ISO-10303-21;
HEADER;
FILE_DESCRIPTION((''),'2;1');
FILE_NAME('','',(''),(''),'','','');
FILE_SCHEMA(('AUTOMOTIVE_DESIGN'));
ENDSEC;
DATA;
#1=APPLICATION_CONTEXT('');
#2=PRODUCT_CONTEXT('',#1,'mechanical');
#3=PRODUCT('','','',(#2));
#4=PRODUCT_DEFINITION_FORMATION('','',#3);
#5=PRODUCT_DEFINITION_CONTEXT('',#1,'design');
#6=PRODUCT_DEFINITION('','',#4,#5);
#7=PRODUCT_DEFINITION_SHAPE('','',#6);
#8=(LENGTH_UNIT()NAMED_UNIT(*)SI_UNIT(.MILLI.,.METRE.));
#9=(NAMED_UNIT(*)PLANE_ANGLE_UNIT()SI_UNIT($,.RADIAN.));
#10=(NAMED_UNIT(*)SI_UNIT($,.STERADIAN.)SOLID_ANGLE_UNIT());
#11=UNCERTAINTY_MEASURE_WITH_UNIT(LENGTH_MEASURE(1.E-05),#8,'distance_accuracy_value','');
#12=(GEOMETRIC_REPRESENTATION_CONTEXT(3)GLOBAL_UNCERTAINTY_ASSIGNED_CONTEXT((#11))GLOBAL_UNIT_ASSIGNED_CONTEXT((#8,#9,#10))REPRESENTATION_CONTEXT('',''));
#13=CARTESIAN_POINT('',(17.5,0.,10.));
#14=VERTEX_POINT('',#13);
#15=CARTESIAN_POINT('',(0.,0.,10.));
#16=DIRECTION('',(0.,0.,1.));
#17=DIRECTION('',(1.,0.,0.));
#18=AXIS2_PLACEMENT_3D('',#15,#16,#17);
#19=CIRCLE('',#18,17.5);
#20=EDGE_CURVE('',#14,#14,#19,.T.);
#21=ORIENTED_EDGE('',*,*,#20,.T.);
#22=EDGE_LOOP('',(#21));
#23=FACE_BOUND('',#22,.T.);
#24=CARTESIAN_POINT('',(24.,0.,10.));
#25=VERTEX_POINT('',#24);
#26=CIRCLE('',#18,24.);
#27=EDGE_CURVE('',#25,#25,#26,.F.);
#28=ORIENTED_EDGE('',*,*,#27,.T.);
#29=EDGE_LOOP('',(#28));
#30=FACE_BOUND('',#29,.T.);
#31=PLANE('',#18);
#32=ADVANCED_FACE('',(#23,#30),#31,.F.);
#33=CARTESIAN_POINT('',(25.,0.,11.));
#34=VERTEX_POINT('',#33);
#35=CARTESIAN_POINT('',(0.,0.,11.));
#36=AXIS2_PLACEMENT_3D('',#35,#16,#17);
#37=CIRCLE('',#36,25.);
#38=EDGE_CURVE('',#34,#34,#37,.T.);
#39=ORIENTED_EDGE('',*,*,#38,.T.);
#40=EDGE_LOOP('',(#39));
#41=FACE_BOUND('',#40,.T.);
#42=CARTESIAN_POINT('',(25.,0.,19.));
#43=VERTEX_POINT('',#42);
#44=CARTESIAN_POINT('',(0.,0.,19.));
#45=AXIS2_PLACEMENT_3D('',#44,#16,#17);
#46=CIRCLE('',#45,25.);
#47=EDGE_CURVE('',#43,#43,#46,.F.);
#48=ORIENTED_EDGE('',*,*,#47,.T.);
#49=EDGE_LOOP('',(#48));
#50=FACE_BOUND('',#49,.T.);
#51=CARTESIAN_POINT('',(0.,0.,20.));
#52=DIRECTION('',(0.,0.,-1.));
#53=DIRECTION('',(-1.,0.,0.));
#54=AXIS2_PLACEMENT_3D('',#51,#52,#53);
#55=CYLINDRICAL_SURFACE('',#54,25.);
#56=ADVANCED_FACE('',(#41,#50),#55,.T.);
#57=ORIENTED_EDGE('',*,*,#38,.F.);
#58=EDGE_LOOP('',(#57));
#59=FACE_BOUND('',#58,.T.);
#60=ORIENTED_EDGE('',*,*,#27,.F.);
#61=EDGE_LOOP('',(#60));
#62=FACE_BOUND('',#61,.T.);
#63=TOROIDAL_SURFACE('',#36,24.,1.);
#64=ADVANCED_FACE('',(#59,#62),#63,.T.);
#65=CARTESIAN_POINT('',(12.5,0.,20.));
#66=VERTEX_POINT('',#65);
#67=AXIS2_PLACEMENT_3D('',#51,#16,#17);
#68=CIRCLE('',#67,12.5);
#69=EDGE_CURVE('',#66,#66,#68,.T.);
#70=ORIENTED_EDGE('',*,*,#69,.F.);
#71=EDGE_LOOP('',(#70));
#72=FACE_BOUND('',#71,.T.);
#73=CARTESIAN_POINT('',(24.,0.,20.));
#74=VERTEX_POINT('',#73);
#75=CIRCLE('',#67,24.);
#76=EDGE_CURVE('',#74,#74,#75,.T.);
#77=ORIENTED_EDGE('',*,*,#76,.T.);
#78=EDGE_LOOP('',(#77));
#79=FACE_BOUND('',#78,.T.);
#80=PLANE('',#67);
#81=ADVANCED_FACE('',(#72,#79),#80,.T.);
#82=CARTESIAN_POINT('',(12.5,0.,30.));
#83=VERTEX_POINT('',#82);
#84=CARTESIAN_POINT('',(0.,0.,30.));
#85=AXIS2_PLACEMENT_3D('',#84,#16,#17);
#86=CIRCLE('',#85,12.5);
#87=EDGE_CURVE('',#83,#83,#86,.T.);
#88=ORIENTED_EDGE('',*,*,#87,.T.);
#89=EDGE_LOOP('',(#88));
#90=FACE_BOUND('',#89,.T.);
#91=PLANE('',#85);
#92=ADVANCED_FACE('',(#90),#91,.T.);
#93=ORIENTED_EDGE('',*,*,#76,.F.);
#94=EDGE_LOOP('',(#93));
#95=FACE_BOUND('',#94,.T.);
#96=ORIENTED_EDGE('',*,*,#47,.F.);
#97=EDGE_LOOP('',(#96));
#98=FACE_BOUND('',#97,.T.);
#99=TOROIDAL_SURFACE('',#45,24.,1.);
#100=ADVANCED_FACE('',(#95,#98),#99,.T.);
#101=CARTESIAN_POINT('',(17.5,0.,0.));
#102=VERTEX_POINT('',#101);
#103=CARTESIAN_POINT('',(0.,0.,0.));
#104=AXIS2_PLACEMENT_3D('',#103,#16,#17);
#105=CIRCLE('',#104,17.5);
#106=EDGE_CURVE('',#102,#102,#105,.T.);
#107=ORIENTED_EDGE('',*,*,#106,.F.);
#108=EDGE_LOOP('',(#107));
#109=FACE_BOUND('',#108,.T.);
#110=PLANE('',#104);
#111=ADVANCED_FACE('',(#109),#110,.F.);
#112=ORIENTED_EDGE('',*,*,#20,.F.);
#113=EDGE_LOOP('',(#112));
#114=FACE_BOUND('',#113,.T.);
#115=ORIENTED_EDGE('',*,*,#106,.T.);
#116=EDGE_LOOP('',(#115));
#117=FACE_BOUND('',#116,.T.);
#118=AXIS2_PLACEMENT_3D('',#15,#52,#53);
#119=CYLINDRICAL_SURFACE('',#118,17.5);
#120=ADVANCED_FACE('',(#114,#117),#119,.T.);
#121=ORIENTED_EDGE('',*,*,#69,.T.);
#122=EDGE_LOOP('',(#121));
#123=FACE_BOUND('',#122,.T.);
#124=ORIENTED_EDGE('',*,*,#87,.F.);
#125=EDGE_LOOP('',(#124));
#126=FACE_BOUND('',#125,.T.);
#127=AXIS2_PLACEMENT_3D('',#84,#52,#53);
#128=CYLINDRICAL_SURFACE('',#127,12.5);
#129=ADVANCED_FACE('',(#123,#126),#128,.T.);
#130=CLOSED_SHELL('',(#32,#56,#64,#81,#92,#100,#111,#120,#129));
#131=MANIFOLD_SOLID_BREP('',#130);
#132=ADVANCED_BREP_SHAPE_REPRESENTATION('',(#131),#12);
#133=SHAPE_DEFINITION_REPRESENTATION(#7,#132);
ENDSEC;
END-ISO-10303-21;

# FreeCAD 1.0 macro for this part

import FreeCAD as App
import Part
import Sketcher
from FreeCAD import Vector
Q = App.Units.Quantity


def edges_at(feature, points):
    """Names of the edges that pass closest to the given points."""
    edges = feature.Shape.Edges
    near = lambda p: min(range(len(edges)), key=lambda i: edges[i].distToShape(Part.Vertex(*p))[0])
    return sorted({f"Edge{near(p) + 1}" for p in points})

doc = App.newDocument("Part")
params = doc.addObject("Spreadsheet::Sheet", "Params")
for row, (alias, value) in enumerate([
    ("sketch1_diameter", "35 mm"),
    ("pad1_length", "10 mm"),
    ("sketch2_diameter", "50 mm"),
    ("pad2_length", "10 mm"),
    ("sketch3_diameter", "25 mm"),
    ("pad3_length", "10 mm"),
    ("fillet_radius", "1 mm"),
], start=1):
    params.set(f"A{row}", alias)
    params.set(f"B{row}", "=" + value)
    params.setAlias(f"B{row}", alias)

body = doc.addObject("PartDesign::Body", "Body")

# Sketch on XY plane
sketch1 = body.newObject("Sketcher::SketchObject", "Sketch")
sketch1.AttachmentSupport = (doc.getObject("XY_Plane"), [""])
sketch1.MapMode = "FlatFace"
sketch1.addGeometry(Part.Circle(Vector(0, 0, 0), Vector(0, 0, 1), 17.5), False)
sketch1.addConstraint([
    Sketcher.Constraint("Coincident", 0, 3, -1, 1),
    Sketcher.Constraint("Diameter", 0, Q("35 mm")),
])
sketch1.setExpression("Constraints[1]", "Params.sketch1_diameter")
pad1 = body.newObject("PartDesign::Pad", "Pad")
pad1.Profile = sketch1
pad1.setExpression("Length", "Params.pad1_length")

# Sketch on XY plane
sketch2 = body.newObject("Sketcher::SketchObject", "Sketch001")
sketch2.AttachmentSupport = (doc.getObject("XY_Plane"), [""])
sketch2.MapMode = "FlatFace"
sketch2.AttachmentOffset = App.Placement(Vector(0, 0, 10), App.Rotation())
sketch2.addGeometry(Part.Circle(Vector(0, 0, 0), Vector(0, 0, 1), 25), False)
sketch2.addConstraint([
    Sketcher.Constraint("Coincident", 0, 3, -1, 1),
    Sketcher.Constraint("Diameter", 0, Q("50 mm")),
])
sketch2.setExpression("Constraints[1]", "Params.sketch2_diameter")
pad2 = body.newObject("PartDesign::Pad", "Pad001")
pad2.Profile = sketch2
pad2.setExpression("Length", "Params.pad2_length")

# Sketch on XY plane
sketch3 = body.newObject("Sketcher::SketchObject", "Sketch002")
sketch3.AttachmentSupport = (doc.getObject("XY_Plane"), [""])
sketch3.MapMode = "FlatFace"
sketch3.AttachmentOffset = App.Placement(Vector(0, 0, 20), App.Rotation())
sketch3.addGeometry(Part.Circle(Vector(0, 0, 0), Vector(0, 0, 1), 12.5), False)
sketch3.addConstraint([
    Sketcher.Constraint("Coincident", 0, 3, -1, 1),
    Sketcher.Constraint("Diameter", 0, Q("25 mm")),
])
sketch3.setExpression("Constraints[1]", "Params.sketch3_diameter")
pad3 = body.newObject("PartDesign::Pad", "Pad002")
pad3.Profile = sketch3
pad3.setExpression("Length", "Params.pad3_length")
doc.recompute()

fillet = body.newObject("PartDesign::Fillet", "Fillet")
fillet.Base = (pad3, edges_at(pad3, [(-25, 0, 10), (-25, 0, 20)]))
fillet.setExpression("Radius", "Params.fillet_radius")

doc.recompute()
